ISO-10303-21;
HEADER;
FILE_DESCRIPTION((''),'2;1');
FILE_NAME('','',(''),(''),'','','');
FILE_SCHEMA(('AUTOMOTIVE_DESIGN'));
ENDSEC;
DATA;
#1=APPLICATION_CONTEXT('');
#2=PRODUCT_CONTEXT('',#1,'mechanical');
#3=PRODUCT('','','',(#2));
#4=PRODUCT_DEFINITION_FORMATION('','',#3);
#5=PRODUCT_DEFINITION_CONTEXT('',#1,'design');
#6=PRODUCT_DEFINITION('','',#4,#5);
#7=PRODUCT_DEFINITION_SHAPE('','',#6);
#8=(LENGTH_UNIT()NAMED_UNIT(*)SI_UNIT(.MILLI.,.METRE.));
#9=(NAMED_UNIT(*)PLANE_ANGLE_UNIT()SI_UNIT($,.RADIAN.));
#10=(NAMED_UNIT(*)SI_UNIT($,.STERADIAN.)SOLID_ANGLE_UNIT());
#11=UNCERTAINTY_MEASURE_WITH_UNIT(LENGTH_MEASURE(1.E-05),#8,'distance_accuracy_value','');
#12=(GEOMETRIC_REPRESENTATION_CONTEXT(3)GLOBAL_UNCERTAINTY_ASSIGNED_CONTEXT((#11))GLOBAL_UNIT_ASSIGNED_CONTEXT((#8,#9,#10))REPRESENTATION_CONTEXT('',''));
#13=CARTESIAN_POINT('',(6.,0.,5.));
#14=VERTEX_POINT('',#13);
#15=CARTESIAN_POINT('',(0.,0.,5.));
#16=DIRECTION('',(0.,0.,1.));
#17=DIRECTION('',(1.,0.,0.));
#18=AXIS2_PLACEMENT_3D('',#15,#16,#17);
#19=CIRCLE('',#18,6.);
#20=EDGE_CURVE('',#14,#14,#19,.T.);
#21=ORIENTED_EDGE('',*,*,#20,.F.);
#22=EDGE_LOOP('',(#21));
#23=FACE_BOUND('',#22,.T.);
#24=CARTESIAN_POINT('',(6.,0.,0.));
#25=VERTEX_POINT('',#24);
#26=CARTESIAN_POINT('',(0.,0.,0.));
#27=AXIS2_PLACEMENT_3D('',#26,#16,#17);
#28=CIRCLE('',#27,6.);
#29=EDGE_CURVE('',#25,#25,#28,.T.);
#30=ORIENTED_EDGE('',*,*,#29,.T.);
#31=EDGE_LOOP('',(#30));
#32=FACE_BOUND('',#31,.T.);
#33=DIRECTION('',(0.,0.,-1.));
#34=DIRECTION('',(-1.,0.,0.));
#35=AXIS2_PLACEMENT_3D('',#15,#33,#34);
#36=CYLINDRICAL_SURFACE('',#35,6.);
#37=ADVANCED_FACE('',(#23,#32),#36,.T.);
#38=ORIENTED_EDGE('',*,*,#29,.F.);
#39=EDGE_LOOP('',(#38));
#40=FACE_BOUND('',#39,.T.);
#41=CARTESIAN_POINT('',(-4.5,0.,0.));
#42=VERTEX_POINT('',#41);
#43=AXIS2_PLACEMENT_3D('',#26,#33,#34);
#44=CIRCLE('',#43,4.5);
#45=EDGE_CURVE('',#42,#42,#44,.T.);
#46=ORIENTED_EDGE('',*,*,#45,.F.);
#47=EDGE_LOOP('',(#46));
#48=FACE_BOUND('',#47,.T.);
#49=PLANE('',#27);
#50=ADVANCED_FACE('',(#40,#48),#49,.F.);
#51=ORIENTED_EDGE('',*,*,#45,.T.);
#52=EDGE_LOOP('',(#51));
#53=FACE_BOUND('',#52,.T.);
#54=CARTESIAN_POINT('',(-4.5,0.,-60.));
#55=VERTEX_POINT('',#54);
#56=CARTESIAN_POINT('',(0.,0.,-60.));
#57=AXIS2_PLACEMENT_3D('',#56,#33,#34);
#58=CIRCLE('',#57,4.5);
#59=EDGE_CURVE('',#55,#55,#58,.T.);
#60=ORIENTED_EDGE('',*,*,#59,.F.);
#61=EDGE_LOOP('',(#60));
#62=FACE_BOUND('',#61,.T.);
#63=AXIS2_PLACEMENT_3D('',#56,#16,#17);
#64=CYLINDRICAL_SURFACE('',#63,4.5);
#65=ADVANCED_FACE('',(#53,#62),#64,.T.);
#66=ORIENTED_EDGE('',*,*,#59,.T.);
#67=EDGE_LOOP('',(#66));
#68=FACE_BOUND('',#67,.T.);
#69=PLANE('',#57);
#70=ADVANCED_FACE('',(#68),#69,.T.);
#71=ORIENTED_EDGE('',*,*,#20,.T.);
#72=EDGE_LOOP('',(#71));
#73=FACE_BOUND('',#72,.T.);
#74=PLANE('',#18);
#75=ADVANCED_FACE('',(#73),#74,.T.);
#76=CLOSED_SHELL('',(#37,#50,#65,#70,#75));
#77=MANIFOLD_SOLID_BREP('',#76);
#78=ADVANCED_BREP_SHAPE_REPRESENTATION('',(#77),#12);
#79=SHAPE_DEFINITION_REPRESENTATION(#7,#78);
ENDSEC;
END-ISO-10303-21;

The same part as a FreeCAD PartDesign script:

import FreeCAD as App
import Part
import Sketcher
from FreeCAD import Vector
Q = App.Units.Quantity

doc = App.newDocument("Part")
body = doc.addObject("PartDesign::Body", "Body")

# Sketch on XY plane
sketch1 = body.newObject("Sketcher::SketchObject", "Sketch")
sketch1.AttachmentSupport = (doc.getObject("XY_Plane"), [""])
sketch1.MapMode = "FlatFace"
sketch1.addGeometry(Part.Circle(Vector(0, 0, 0), Vector(0, 0, 1), 6), False)
sketch1.addConstraint(Sketcher.Constraint("Coincident", 0, 3, -1, 1))
sketch1.addConstraint(Sketcher.Constraint("Diameter", 0, Q("12 mm")))
pad1 = body.newObject("PartDesign::Pad", "Pad")
pad1.Profile = sketch1
pad1.Length = 5

# Sketch on XY plane
sketch2 = body.newObject("Sketcher::SketchObject", "Sketch001")
sketch2.AttachmentSupport = (doc.getObject("XY_Plane"), [""])
sketch2.MapMode = "FlatFace"
sketch2.addGeometry(Part.Circle(Vector(0, 0, 0), Vector(0, 0, 1), 4.5), False)
sketch2.addConstraint(Sketcher.Constraint("Coincident", 0, 3, -1, 1))
sketch2.addConstraint(Sketcher.Constraint("Diameter", 0, Q("9 mm")))
pad2 = body.newObject("PartDesign::Pad", "Pad001")
pad2.Profile = sketch2
pad2.Length = 60
pad2.Reversed = True

doc.recompute()
